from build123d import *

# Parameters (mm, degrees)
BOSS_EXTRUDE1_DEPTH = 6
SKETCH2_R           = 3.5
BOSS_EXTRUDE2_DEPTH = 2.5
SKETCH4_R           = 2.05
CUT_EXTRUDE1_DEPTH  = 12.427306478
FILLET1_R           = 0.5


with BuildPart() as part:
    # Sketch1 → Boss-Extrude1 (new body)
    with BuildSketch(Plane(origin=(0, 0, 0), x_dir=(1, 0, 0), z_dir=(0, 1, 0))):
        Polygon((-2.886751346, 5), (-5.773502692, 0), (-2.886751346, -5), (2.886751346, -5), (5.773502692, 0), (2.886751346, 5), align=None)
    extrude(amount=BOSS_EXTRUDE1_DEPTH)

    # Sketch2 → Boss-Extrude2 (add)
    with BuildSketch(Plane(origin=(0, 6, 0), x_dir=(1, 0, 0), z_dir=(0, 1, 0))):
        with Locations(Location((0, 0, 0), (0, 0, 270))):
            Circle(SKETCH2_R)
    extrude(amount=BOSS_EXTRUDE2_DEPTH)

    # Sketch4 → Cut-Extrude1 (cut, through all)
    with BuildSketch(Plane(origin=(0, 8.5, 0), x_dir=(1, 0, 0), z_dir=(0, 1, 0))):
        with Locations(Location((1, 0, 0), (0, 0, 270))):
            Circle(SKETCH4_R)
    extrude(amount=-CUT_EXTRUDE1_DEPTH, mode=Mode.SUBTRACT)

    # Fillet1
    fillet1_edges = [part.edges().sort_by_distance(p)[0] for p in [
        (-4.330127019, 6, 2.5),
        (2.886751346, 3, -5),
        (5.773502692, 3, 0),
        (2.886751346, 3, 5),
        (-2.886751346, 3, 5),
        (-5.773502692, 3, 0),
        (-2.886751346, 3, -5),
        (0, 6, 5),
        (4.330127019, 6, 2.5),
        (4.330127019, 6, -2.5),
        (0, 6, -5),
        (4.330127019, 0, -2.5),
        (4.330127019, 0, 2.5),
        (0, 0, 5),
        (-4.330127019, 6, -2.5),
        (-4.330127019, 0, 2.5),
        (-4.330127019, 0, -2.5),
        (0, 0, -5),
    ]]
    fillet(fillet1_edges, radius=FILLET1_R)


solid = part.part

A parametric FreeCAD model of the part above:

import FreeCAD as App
import Part
import Sketcher
Q = App.Units.Quantity


def edges_at(feature, points):
    """Names of the edges that pass closest to the given points."""
    edges = feature.Shape.Edges
    near = lambda p: min(range(len(edges)), key=lambda i: edges[i].distToShape(Part.Vertex(*p))[0])
    return sorted({f"Edge{near(p) + 1}" for p in points})


def add_polygon(sketch, points):
    """Adds a closed chain of lines whose ends are joined by coincident constraints."""
    first, n = sketch.GeometryCount, len(points)
    for a, b in zip(points, points[1:] + points[:1]):
        sketch.addGeometry(Part.LineSegment(App.Vector(*a, 0), App.Vector(*b, 0)), False)
    for i in range(n):
        sketch.addConstraint(Sketcher.Constraint("Coincident", first + i, 2, first + (i + 1) % n, 1))

doc = App.newDocument("Part")
body = doc.addObject("PartDesign::Body", "Body")

# Sketch on XZ plane
sketch1 = body.newObject("Sketcher::SketchObject", "Sketch")
sketch1.AttachmentSupport = (doc.getObject("XZ_Plane"), [""])
sketch1.MapMode = "FlatFace"
add_polygon(sketch1, [(-3, -5), (-6, 0), (-3, 5), (3, 5), (6, 0), (3, -5)])  # lines 0-5
sketch1.addConstraint([
    Sketcher.Constraint("Horizontal", 2),
    Sketcher.Constraint("Horizontal", 5),
    Sketcher.Constraint("Symmetric", 0, 2, 3, 2, -1, 1),
    Sketcher.Constraint("Symmetric", 1, 2, 4, 2, -1, 1),
    Sketcher.Constraint("PointOnObject", 0, 2, -1),
    Sketcher.Constraint("Parallel", 0, 3),
    Sketcher.Constraint("Vertical", 2, 2, 4, 2),
    Sketcher.Constraint("Angle", 0, Q("120 deg")),
    Sketcher.Constraint("DistanceY", -1, 1, 1, 2, Q("5 mm")),
    Sketcher.Constraint("DistanceX", 2, 1, 2, 2, Q("5.773503 mm")),
])
pad1 = body.newObject("PartDesign::Pad", "Pad")
pad1.Profile = sketch1
pad1.Length = 6
pad1.Reversed = True

# Sketch on XZ plane
sketch2 = body.newObject("Sketcher::SketchObject", "Sketch001")
sketch2.AttachmentSupport = (doc.getObject("XZ_Plane"), [""])
sketch2.MapMode = "FlatFace"
sketch2.AttachmentOffset = App.Placement(App.Vector(0, 0, -6), App.Rotation())
sketch2.addGeometry(Part.Circle(App.Vector(0, 0, 0), App.Vector(0, 0, 1), 3.5), False)
sketch2.addConstraint([
    Sketcher.Constraint("Coincident", 0, 3, -1, 1),
    Sketcher.Constraint("Diameter", 0, Q("7 mm")),
])
pad2 = body.newObject("PartDesign::Pad", "Pad001")
pad2.Profile = sketch2
pad2.Length = 2.5
pad2.Reversed = True

# Sketch on XZ plane
sketch3 = body.newObject("Sketcher::SketchObject", "Sketch002")
sketch3.AttachmentSupport = (doc.getObject("XZ_Plane"), [""])
sketch3.MapMode = "FlatFace"
sketch3.AttachmentOffset = App.Placement(App.Vector(0, 0, -8.5), App.Rotation())
sketch3.addGeometry(Part.Circle(App.Vector(1, 0, 0), App.Vector(0, 0, 1), 2), False)
sketch3.addConstraint([
    Sketcher.Constraint("PointOnObject", 0, 3, -1),
    Sketcher.Constraint("Diameter", 0, Q("4.1 mm")),
    Sketcher.Constraint("DistanceX", -1, 1, 0, 3, Q("1 mm")),
])
pocket1 = body.newObject("PartDesign::Pocket", "Pocket")
pocket1.Profile = sketch3
pocket1.Type = "ThroughAll"
pocket1.Reversed = True
doc.recompute()

fillet = body.newObject("PartDesign::Fillet", "Fillet")
fillet.Base = (pocket1, edges_at(pocket1, [
    (-4.33, 6, 2.5),
    (2.887, 3, -5),
    (5.774, 3, 0),
    (2.887, 3, 5),
    (-2.887, 3, 5),
    (-5.774, 3, 0),
    (-2.887, 3, -5),
    (0, 6, 5),
    (4.33, 6, 2.5),
    (4.33, 6, -2.5),
    (0, 6, -5),
    (4.33, 0, -2.5),
    (4.33, 0, 2.5),
    (0, 0, 5),
    (-4.33, 6, -2.5),
    (-4.33, 0, 2.5),
    (-4.33, 0, -2.5),
    (0, 0, -5),
]))
fillet.Radius = 0.5

doc.recompute()
